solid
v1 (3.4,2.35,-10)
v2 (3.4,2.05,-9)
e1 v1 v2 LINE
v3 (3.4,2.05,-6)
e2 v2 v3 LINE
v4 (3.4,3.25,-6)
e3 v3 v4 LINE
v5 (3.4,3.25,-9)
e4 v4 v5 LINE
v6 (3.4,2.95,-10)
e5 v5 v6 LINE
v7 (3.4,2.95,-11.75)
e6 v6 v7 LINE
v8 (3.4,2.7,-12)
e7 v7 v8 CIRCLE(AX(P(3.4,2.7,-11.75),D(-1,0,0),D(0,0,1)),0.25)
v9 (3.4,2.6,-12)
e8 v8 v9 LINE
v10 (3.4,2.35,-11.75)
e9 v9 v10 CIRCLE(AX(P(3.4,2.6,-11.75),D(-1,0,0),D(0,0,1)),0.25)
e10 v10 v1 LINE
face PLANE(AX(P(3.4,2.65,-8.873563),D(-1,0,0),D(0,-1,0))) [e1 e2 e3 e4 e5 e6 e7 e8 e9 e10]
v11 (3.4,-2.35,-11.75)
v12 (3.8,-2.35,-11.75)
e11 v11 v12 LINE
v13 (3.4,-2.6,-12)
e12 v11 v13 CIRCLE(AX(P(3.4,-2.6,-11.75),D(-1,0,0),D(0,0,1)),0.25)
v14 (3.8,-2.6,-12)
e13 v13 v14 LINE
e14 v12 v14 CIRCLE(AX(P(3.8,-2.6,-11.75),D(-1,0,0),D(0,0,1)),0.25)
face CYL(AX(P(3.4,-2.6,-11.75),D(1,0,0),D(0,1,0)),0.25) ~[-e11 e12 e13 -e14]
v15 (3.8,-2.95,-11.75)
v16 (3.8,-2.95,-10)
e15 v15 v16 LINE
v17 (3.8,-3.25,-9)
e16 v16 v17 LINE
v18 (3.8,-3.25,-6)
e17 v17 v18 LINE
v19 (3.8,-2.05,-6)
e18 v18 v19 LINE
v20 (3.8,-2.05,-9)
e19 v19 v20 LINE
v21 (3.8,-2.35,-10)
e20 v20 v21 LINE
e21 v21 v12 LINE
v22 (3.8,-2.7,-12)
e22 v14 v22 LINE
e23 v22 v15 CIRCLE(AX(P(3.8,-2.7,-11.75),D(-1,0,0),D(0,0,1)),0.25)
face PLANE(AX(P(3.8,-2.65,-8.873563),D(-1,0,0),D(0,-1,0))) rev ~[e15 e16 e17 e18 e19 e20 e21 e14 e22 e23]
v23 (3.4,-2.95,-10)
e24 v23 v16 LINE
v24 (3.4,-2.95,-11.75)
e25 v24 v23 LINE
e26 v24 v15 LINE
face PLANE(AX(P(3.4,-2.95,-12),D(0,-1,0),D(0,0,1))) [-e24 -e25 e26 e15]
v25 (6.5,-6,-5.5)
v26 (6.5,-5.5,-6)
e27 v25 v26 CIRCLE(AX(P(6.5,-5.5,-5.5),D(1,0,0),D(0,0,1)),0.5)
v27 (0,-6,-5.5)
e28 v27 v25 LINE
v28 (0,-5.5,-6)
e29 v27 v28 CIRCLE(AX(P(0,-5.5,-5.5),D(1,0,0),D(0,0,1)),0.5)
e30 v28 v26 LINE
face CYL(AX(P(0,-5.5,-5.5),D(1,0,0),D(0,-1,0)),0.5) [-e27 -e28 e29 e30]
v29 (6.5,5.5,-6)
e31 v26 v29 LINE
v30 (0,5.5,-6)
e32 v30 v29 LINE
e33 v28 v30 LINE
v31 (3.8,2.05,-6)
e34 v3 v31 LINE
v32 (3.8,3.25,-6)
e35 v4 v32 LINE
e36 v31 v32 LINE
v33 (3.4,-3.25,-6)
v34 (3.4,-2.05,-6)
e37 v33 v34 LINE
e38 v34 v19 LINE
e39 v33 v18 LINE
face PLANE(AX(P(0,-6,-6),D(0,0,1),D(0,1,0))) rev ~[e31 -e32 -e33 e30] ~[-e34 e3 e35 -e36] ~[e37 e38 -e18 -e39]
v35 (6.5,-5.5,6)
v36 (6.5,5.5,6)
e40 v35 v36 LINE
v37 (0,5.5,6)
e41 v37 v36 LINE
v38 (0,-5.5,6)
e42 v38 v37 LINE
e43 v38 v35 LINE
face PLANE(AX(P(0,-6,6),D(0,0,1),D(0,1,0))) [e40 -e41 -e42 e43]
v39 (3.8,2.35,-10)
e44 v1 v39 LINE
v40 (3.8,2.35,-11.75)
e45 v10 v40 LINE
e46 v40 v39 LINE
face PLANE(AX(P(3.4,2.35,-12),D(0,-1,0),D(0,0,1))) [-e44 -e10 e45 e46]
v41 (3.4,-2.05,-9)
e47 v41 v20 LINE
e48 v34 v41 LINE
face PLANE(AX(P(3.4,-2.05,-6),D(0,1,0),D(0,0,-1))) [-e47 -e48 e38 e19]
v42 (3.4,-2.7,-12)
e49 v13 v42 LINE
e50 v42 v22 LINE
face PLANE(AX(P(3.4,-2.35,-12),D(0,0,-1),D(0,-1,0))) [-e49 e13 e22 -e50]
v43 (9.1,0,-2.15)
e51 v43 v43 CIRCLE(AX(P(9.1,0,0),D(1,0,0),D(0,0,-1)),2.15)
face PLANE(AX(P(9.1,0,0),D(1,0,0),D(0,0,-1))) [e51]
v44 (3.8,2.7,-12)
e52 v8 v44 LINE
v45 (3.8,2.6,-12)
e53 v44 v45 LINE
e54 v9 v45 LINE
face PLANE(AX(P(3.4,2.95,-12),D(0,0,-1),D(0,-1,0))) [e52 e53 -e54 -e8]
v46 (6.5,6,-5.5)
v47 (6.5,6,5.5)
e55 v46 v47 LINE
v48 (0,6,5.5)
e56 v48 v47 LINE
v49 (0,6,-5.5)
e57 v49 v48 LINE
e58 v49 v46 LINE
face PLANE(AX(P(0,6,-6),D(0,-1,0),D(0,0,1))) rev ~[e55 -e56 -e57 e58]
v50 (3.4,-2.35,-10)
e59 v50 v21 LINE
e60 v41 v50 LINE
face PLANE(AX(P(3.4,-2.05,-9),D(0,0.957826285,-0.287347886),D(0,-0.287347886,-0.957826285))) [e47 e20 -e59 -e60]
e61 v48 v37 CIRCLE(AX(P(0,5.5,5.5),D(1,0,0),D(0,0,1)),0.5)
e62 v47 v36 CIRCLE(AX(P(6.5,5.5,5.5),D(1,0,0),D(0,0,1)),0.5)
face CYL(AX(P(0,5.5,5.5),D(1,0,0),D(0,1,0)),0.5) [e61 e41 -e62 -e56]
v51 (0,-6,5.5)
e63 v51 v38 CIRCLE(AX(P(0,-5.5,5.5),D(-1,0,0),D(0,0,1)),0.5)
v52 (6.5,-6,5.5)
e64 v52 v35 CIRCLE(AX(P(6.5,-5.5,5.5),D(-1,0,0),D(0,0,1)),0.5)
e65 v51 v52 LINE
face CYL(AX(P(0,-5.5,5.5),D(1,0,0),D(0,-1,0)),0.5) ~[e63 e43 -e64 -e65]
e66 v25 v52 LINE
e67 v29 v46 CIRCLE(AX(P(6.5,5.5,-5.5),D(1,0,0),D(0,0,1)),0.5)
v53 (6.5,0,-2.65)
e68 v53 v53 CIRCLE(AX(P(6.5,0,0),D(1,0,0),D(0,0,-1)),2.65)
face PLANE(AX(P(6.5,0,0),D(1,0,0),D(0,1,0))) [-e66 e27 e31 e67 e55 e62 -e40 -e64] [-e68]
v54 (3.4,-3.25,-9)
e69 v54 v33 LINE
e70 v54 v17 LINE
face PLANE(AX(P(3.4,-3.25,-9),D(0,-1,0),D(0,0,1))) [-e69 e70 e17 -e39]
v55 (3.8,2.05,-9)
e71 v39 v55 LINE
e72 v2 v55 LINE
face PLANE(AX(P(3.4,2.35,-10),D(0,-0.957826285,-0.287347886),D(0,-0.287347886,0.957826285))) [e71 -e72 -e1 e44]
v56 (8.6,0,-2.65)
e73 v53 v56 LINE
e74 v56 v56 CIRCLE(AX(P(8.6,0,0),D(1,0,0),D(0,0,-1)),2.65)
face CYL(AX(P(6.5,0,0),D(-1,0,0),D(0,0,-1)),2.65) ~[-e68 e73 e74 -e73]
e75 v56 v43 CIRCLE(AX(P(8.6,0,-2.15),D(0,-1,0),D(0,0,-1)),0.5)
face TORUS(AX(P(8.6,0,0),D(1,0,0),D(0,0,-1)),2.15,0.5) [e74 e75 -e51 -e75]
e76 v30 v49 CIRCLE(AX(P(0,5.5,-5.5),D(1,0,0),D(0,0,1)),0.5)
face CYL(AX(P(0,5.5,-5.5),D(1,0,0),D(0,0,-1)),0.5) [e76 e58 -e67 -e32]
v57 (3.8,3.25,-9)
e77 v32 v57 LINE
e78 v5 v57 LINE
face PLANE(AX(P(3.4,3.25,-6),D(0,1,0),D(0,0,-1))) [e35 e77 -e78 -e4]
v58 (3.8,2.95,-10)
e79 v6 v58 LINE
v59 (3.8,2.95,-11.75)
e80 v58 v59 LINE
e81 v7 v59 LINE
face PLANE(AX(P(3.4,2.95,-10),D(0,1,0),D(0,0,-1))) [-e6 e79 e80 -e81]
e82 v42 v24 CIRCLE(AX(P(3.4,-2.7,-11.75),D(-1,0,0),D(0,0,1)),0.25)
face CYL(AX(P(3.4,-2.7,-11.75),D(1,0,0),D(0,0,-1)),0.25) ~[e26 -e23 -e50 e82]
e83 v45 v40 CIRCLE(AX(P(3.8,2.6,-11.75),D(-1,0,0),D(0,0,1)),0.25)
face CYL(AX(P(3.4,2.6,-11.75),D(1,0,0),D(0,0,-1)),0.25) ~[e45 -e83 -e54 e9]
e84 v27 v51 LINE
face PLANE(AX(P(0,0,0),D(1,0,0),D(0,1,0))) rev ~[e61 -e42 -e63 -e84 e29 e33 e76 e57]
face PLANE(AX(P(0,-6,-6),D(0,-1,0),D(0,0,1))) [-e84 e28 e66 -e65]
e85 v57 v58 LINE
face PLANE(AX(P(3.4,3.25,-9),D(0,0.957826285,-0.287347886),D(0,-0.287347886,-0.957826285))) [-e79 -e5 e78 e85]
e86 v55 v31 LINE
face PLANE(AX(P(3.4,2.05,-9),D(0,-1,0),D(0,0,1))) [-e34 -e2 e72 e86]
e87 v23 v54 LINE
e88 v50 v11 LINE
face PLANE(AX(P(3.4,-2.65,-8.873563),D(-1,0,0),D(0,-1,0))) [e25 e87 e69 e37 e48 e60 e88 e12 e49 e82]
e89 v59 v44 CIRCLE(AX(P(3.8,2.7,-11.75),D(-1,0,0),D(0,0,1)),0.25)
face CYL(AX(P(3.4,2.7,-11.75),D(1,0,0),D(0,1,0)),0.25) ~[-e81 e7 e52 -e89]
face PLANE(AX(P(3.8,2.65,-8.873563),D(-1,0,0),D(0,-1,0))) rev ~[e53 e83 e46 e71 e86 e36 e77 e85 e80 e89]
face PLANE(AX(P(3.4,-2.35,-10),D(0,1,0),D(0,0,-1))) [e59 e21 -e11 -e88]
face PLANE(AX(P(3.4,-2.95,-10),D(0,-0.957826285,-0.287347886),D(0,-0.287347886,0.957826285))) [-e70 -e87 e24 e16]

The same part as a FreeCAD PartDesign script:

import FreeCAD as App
import Part
import Sketcher

V = App.Vector


def edges_at(feature, points):
    """Names of the edges that pass closest to the given points."""
    edges = feature.Shape.Edges
    near = lambda p: min(range(len(edges)), key=lambda i: edges[i].distToShape(Part.Vertex(*p))[0])
    return sorted({f"Edge{near(p) + 1}" for p in points})

doc = App.newDocument("Part")
body = doc.addObject("PartDesign::Body", "Body")

# Sketch on XY plane
sketch1 = body.newObject("Sketcher::SketchObject", "Sketch")
sketch1.AttachmentSupport = (doc.getObject("XY_Plane"), [""])
sketch1.MapMode = "FlatFace"
sketch1.addGeometry(Part.Circle(V(0, 0, 0), V(0, 0, 1), 2.6), False)
sketch1.addConstraint([
    Sketcher.Constraint("Coincident", 0, 3, -1, 1),
    Sketcher.Constraint("Diameter", 0, 5.3),
])
pad1 = body.newObject("PartDesign::Pad", "Pad")
pad1.Profile = sketch1
pad1.Length = 2.6
body2 = doc.addObject("PartDesign::Body", "Body001")
doc.recompute()

body.Placement = App.Placement(V(0, 0, 0), App.Rotation(V(0, 1, 0), 90))
boolean = body2.newObject("PartDesign::Boolean", "Boolean")
boolean.Type = "Fuse"
boolean.addObjects([body])
body3 = doc.addObject("PartDesign::Body", "Body002")
doc.recompute()

body2.Placement = App.Placement(V(6.5, 0, 0), App.Rotation(V(0, 0, 1), 0))
boolean2 = body3.newObject("PartDesign::Boolean", "Boolean001")
boolean2.Type = "Fuse"
boolean2.addObjects([body2])
doc.recompute()

fillet = body3.newObject("PartDesign::Fillet", "Fillet")
fillet.Base = (boolean2, edges_at(boolean2, [(9.1, 0, 2.65)]))
fillet.Radius = 0.5
body4 = doc.addObject("PartDesign::Body", "Body003")
body4.AllowCompound = True

# Sketch on YZ plane
sketch2 = body4.newObject("Sketcher::SketchObject", "Sketch001")
sketch2.AttachmentSupport = (doc.getObject("YZ_Plane003"), [""])
sketch2.MapMode = "FlatFace"
sketch2.AttachmentOffset = App.Placement(V(0, 0, 3.4), App.Rotation())
sketch2.addGeometry([
    Part.LineSegment(V(-2, -6, 0), V(-3.2, -6, 0)),  # 0
    Part.LineSegment(V(-3.2, -6, 0), V(-3.2, -9, 0)),  # 1
    Part.LineSegment(V(-3.2, -9, 0), V(-3, -10, 0)),  # 2
    Part.LineSegment(V(-3, -10, 0), V(-3, -12, 0)),  # 3
    Part.LineSegment(V(-3, -12, 0), V(-2.4, -12, 0)),  # 4
    Part.LineSegment(V(-2.4, -12, 0), V(-2.4, -10, 0)),  # 5
    Part.LineSegment(V(-2.4, -10, 0), V(-2, -9, 0)),  # 6
    Part.LineSegment(V(-2, -9, 0), V(-2, -6, 0)),  # 7
    Part.LineSegment(V(3.2, -6, 0), V(2, -6, 0)),  # 8
    Part.LineSegment(V(2, -6, 0), V(2, -9, 0)),  # 9
    Part.LineSegment(V(2, -9, 0), V(2.4, -10, 0)),  # 10
    Part.LineSegment(V(2.4, -10, 0), V(2.4, -12, 0)),  # 11
    Part.LineSegment(V(2.4, -12, 0), V(3, -12, 0)),  # 12
    Part.LineSegment(V(3, -12, 0), V(3, -10, 0)),  # 13
    Part.LineSegment(V(3, -10, 0), V(3.2, -9, 0)),  # 14
    Part.LineSegment(V(3.2, -9, 0), V(3.2, -6, 0)),  # 15
], False)
sketch2.addConstraint([
    Sketcher.Constraint("Coincident", 0, 2, 1, 1),
    Sketcher.Constraint("Coincident", 1, 2, 2, 1),
    Sketcher.Constraint("Coincident", 2, 2, 3, 1),
    Sketcher.Constraint("Coincident", 3, 2, 4, 1),
    Sketcher.Constraint("Coincident", 4, 2, 5, 1),
    Sketcher.Constraint("Coincident", 5, 2, 6, 1),
    Sketcher.Constraint("Coincident", 6, 2, 7, 1),
    Sketcher.Constraint("Coincident", 7, 2, 0, 1),
    Sketcher.Constraint("Coincident", 8, 2, 9, 1),
    Sketcher.Constraint("Coincident", 9, 2, 10, 1),
    Sketcher.Constraint("Coincident", 10, 2, 11, 1),
    Sketcher.Constraint("Coincident", 11, 2, 12, 1),
    Sketcher.Constraint("Coincident", 12, 2, 13, 1),
    Sketcher.Constraint("Coincident", 13, 2, 14, 1),
    Sketcher.Constraint("Coincident", 14, 2, 15, 1),
    Sketcher.Constraint("Coincident", 15, 2, 8, 1),
    Sketcher.Constraint("Horizontal", 0),
    Sketcher.Constraint("Vertical", 1),
    Sketcher.Constraint("Vertical", 3),
    Sketcher.Constraint("Horizontal", 4),
    Sketcher.Constraint("Vertical", 5),
    Sketcher.Constraint("Vertical", 7),
    Sketcher.Constraint("Horizontal", 8),
    Sketcher.Constraint("Vertical", 9),
    Sketcher.Constraint("Vertical", 11),
    Sketcher.Constraint("Horizontal", 12),
    Sketcher.Constraint("Vertical", 13),
    Sketcher.Constraint("Vertical", 15),
    Sketcher.Constraint("Symmetric", 7, 2, 8, 2, -2),
    Sketcher.Constraint("Symmetric", 5, 2, 10, 2, -2),
    Sketcher.Constraint("Symmetric", 3, 2, 12, 2, -2),
    Sketcher.Constraint("Symmetric", 1, 2, 14, 2, -2),
    Sketcher.Constraint("Parallel", 2, 10),
    Sketcher.Constraint("Parallel", 6, 14),
    Sketcher.Constraint("Horizontal", 2, 2, 5, 2),
    Sketcher.Constraint("Horizontal", 1, 2, 6, 2),
    Sketcher.Constraint("Horizontal", 6, 2, 9, 2),
    Sketcher.Constraint("DistanceY", 1, 2, 1, 1, 3.0),
    Sketcher.Constraint("DistanceY", 3, 2, 3, 1, 2.0),
    Sketcher.Constraint("DistanceX", 0, 2, 0, 1, 1.2),
    Sketcher.Constraint("DistanceX", 4, 1, 4, 2, 0.6),
    Sketcher.Constraint("DistanceY", 0, 2, -1, 1, 6.0),
    Sketcher.Constraint("DistanceY", 2, 2, -1, 1, 10.0),
    Sketcher.Constraint("DistanceX", 2, 2, 9, 2, 5.0),
])
pad2 = body4.newObject("PartDesign::Pad", "Pad001")
pad2.Profile = sketch2
pad2.Length = 0.4
doc.recompute()

fillet2 = body4.newObject("PartDesign::Fillet", "Fillet001")
fillet2.Base = (pad2, edges_at(pad2, [
    (3.6, 2.95, -12),
    (3.6, 2.35, -12),
    (3.6, -2.35, -12),
    (3.6, -2.95, -12),
]))
fillet2.Radius = 0.25
body5 = doc.addObject("PartDesign::Body", "Body004")

# Sketch on YZ plane
sketch3 = body5.newObject("Sketcher::SketchObject", "Sketch002")
sketch3.AttachmentSupport = (doc.getObject("YZ_Plane004"), [""])
sketch3.MapMode = "FlatFace"
sketch3.addGeometry([
    Part.LineSegment(V(-6, 6, 0), V(-6, -6, 0)),
    Part.LineSegment(V(-6, -6, 0), V(6, -6, 0)),
    Part.LineSegment(V(6, -6, 0), V(6, 6, 0)),
    Part.LineSegment(V(6, 6, 0), V(-6, 6, 0)),
], False)
sketch3.addConstraint([
    Sketcher.Constraint("Coincident", 0, 2, 1, 1),
    Sketcher.Constraint("Coincident", 1, 2, 2, 1),
    Sketcher.Constraint("Coincident", 2, 2, 3, 1),
    Sketcher.Constraint("Coincident", 3, 2, 0, 1),
    Sketcher.Constraint("Vertical", 0),
    Sketcher.Constraint("Horizontal", 1),
    Sketcher.Constraint("Vertical", 2),
    Sketcher.Constraint("Horizontal", 3),
    Sketcher.Constraint("Symmetric", 0, 2, 2, 2, -1, 1),
    Sketcher.Constraint("Equal", 3, 0),
    Sketcher.Constraint("DistanceX", 1, 1, 1, 2, 12.0),
])
pad3 = body5.newObject("PartDesign::Pad", "Pad002")
pad3.Profile = sketch3
pad3.Length = 6.5
doc.recompute()

fillet3 = body5.newObject("PartDesign::Fillet", "Fillet002")
fillet3.Base = (pad3, edges_at(pad3, [
    (3.25, 6, 6),
    (3.25, -6, 6),
    (3.25, -6, -6),
    (3.25, 6, -6),
]))
fillet3.Radius = 0.5
doc.recompute()

boolean3 = body5.newObject("PartDesign::Boolean", "Boolean002")
boolean3.Type = "Fuse"
boolean3.addObjects([body3])
doc.recompute()

boolean4 = body5.newObject("PartDesign::Boolean", "Boolean003")
boolean4.Type = "Fuse"
boolean4.addObjects([body4])

doc.recompute()
